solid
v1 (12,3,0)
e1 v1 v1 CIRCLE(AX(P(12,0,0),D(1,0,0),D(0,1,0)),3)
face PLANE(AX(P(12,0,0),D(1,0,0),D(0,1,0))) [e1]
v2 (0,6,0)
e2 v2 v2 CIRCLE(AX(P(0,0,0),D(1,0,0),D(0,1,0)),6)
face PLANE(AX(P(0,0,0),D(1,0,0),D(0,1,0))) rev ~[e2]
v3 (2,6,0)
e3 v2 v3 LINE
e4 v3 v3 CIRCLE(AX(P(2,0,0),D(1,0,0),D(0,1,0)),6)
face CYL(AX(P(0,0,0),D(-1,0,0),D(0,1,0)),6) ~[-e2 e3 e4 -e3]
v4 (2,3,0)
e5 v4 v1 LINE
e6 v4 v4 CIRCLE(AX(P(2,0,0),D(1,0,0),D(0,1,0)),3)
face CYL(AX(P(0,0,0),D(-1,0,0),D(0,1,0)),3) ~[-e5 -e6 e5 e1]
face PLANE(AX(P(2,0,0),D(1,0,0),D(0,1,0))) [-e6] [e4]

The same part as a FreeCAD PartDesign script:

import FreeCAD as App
import Part
import Sketcher

V = App.Vector
Q = App.Units.Quantity

doc = App.newDocument("Part")
body = doc.addObject("PartDesign::Body", "Body")

sketch1 = body.newObject("Sketcher::SketchObject", "Sketch")
sketch1.AttachmentSupport = (doc.getObject("YZ_Plane"), [""])
sketch1.MapMode = "FlatFace"
sketch1.addGeometry(Part.Circle(V(0, 0, 0), V(0, 0, 1), 3), False)
sketch1.addConstraint(Sketcher.Constraint("Coincident", 0, 3, -1, 1))
sketch1.addConstraint(Sketcher.Constraint("Diameter", 0, Q("6 mm")))
pad1 = body.newObject("PartDesign::Pad", "Pad")
pad1.Profile = sketch1
pad1.Length = 12

sketch2 = body.newObject("Sketcher::SketchObject", "Sketch001")
sketch2.AttachmentSupport = (doc.getObject("YZ_Plane"), [""])
sketch2.MapMode = "FlatFace"
sketch2.addGeometry(Part.Circle(V(0, 0, 0), V(0, 0, 1), 6), False)
sketch2.addGeometry(Part.Circle(V(0, 0, 0), V(0, 0, 1), 3), False)
sketch2.addConstraint(Sketcher.Constraint("Coincident", 0, 3, -1, 1))
sketch2.addConstraint(Sketcher.Constraint("Coincident", 1, 3, -1, 1))
sketch2.addConstraint(Sketcher.Constraint("Diameter", 0, Q("12 mm")))
sketch2.addConstraint(Sketcher.Constraint("Diameter", 1, Q("6 mm")))
pad2 = body.newObject("PartDesign::Pad", "Pad001")
pad2.Profile = sketch2
pad2.Length = 2

doc.recompute()
